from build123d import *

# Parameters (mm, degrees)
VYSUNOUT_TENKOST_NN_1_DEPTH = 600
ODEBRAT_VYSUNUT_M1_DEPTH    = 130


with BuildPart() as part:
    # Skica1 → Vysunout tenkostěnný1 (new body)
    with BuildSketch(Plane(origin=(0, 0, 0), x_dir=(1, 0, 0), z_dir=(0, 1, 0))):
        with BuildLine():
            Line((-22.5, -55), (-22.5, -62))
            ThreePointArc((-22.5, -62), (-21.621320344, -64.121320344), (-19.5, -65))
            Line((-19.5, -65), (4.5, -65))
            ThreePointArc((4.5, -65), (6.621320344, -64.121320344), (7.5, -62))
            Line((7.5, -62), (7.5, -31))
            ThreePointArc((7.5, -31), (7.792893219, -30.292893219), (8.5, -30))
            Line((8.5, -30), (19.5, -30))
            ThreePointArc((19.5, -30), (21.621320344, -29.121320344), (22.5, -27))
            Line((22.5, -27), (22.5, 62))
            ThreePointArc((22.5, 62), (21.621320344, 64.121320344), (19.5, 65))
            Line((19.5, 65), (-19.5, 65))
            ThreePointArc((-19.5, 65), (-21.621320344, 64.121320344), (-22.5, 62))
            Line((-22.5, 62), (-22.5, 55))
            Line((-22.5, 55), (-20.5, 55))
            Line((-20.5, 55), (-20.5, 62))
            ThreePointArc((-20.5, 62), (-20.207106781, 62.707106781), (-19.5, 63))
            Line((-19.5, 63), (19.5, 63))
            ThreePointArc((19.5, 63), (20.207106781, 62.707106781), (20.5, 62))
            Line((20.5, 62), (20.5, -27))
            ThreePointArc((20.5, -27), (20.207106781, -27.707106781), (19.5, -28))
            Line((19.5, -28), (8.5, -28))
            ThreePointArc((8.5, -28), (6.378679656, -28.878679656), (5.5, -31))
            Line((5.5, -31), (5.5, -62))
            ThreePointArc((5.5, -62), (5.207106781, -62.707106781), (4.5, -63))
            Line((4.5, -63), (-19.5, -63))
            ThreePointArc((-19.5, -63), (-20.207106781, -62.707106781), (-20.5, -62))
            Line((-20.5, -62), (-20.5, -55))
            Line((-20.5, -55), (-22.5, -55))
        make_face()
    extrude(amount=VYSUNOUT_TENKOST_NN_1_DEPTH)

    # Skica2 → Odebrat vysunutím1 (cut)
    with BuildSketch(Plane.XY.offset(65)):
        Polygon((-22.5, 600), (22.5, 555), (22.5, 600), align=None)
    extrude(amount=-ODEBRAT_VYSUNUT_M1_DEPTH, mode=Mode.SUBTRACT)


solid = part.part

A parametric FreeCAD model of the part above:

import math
import FreeCAD as App
import Part
import Sketcher
Q = App.Units.Quantity

doc = App.newDocument("Part")
body = doc.addObject("PartDesign::Body", "Body")

# Sketch on XZ plane
sketch1 = body.newObject("Sketcher::SketchObject", "Sketch")
sketch1.AttachmentSupport = (doc.getObject("XZ_Plane"), [""])
sketch1.MapMode = "FlatFace"
sketch1.addGeometry([
    Part.LineSegment(App.Vector(-22.5, 55, 0), App.Vector(-22.5, 62, 0)),  # 0
    Part.ArcOfCircle(Part.Circle(App.Vector(-19.5, 62, 0), App.Vector(0, 0, 1), 3), math.radians(90), math.radians(180)),  # 1
    Part.LineSegment(App.Vector(-19.5, 65, 0), App.Vector(4.5, 65, 0)),  # 2
    Part.ArcOfCircle(Part.Circle(App.Vector(4.5, 62, 0), App.Vector(0, 0, 1), 3), math.radians(0), math.radians(90)),  # 3
    Part.LineSegment(App.Vector(7.5, 62, 0), App.Vector(7.5, 31, 0)),  # 4
    Part.ArcOfCircle(Part.Circle(App.Vector(8.5, 31, 0), App.Vector(0, 0, 1), 1), math.radians(-180), math.radians(-90)),  # 5
    Part.LineSegment(App.Vector(8.5, 30, 0), App.Vector(19.5, 30, 0)),  # 6
    Part.ArcOfCircle(Part.Circle(App.Vector(19.5, 27, 0), App.Vector(0, 0, 1), 3), math.radians(0), math.radians(90)),  # 7
    Part.LineSegment(App.Vector(22.5, 27, 0), App.Vector(22.5, -62, 0)),  # 8
    Part.ArcOfCircle(Part.Circle(App.Vector(19.5, -62, 0), App.Vector(0, 0, 1), 3), math.radians(-90), math.radians(0)),  # 9
    Part.LineSegment(App.Vector(19.5, -65, 0), App.Vector(-19.5, -65, 0)),  # 10
    Part.ArcOfCircle(Part.Circle(App.Vector(-19.5, -62, 0), App.Vector(0, 0, 1), 3), math.radians(180), math.radians(270)),  # 11
    Part.LineSegment(App.Vector(-22.5, -62, 0), App.Vector(-22.5, -55, 0)),  # 12
    Part.LineSegment(App.Vector(-22.5, -55, 0), App.Vector(-20.5, -55, 0)),  # 13
    Part.LineSegment(App.Vector(-20.5, -55, 0), App.Vector(-20.5, -62, 0)),  # 14
    Part.ArcOfCircle(Part.Circle(App.Vector(-19.5, -62, 0), App.Vector(0, 0, 1), 1), math.radians(-180), math.radians(-90)),  # 15
    Part.LineSegment(App.Vector(-19.5, -63, 0), App.Vector(19.5, -63, 0)),  # 16
    Part.ArcOfCircle(Part.Circle(App.Vector(19.5, -62, 0), App.Vector(0, 0, 1), 1), math.radians(-90), math.radians(0)),  # 17
    Part.LineSegment(App.Vector(20.5, -62, 0), App.Vector(20.5, 27, 0)),  # 18
    Part.ArcOfCircle(Part.Circle(App.Vector(19.5, 27, 0), App.Vector(0, 0, 1), 1), math.radians(0), math.radians(90)),  # 19
    Part.LineSegment(App.Vector(19.5, 28, 0), App.Vector(8.5, 28, 0)),  # 20
    Part.ArcOfCircle(Part.Circle(App.Vector(8.5, 31, 0), App.Vector(0, 0, 1), 3), math.radians(180), math.radians(270)),  # 21
    Part.LineSegment(App.Vector(5.5, 31, 0), App.Vector(5.5, 62, 0)),  # 22
    Part.ArcOfCircle(Part.Circle(App.Vector(4.5, 62, 0), App.Vector(0, 0, 1), 1), math.radians(0), math.radians(90)),  # 23
    Part.LineSegment(App.Vector(4.5, 63, 0), App.Vector(-19.5, 63, 0)),  # 24
    Part.ArcOfCircle(Part.Circle(App.Vector(-19.5, 62, 0), App.Vector(0, 0, 1), 1), math.radians(90), math.radians(180)),  # 25
    Part.LineSegment(App.Vector(-20.5, 62, 0), App.Vector(-20.5, 55, 0)),  # 26
    Part.LineSegment(App.Vector(-20.5, 55, 0), App.Vector(-22.5, 55, 0)),  # 27
], False)
sketch1.addConstraint([
    Sketcher.Constraint("Tangent", 0, 2, 1, 2),
    Sketcher.Constraint("Tangent", 1, 1, 2, 1),
    Sketcher.Constraint("Tangent", 2, 2, 3, 2),
    Sketcher.Constraint("Tangent", 3, 1, 4, 1),
    Sketcher.Constraint("Tangent", 4, 2, 5, 1),
    Sketcher.Constraint("Tangent", 5, 2, 6, 1),
    Sketcher.Constraint("Tangent", 6, 2, 7, 2),
    Sketcher.Constraint("Tangent", 7, 1, 8, 1),
    Sketcher.Constraint("Tangent", 8, 2, 9, 2),
    Sketcher.Constraint("Tangent", 9, 1, 10, 1),
    Sketcher.Constraint("Tangent", 10, 2, 11, 2),
    Sketcher.Constraint("Tangent", 11, 1, 12, 1),
    Sketcher.Constraint("Coincident", 12, 2, 13, 1),
    Sketcher.Constraint("Coincident", 13, 2, 14, 1),
    Sketcher.Constraint("Tangent", 14, 2, 15, 1),
    Sketcher.Constraint("Tangent", 15, 2, 16, 1),
    Sketcher.Constraint("Tangent", 16, 2, 17, 1),
    Sketcher.Constraint("Tangent", 17, 2, 18, 1),
    Sketcher.Constraint("Tangent", 18, 2, 19, 1),
    Sketcher.Constraint("Tangent", 19, 2, 20, 1),
    Sketcher.Constraint("Tangent", 20, 2, 21, 2),
    Sketcher.Constraint("Tangent", 21, 1, 22, 1),
    Sketcher.Constraint("Tangent", 22, 2, 23, 1),
    Sketcher.Constraint("Tangent", 23, 2, 24, 1),
    Sketcher.Constraint("Tangent", 24, 2, 25, 1),
    Sketcher.Constraint("Tangent", 25, 2, 26, 1),
    Sketcher.Constraint("Coincident", 26, 2, 27, 1),
    Sketcher.Constraint("Coincident", 27, 2, 0, 1),
    Sketcher.Constraint("Vertical", 0),
    Sketcher.Constraint("Horizontal", 2),
    Sketcher.Constraint("Vertical", 4),
    Sketcher.Constraint("Horizontal", 6),
    Sketcher.Constraint("Vertical", 8),
    Sketcher.Constraint("Horizontal", 10),
    Sketcher.Constraint("Vertical", 12),
    Sketcher.Constraint("Horizontal", 13),
    Sketcher.Constraint("Vertical", 14),
    Sketcher.Constraint("Horizontal", 16),
    Sketcher.Constraint("Vertical", 18),
    Sketcher.Constraint("Horizontal", 20),
    Sketcher.Constraint("Vertical", 22),
    Sketcher.Constraint("Horizontal", 24),
    Sketcher.Constraint("Vertical", 26),
    Sketcher.Constraint("Horizontal", 27),
    Sketcher.Constraint("Coincident", 15, 3, 11, 3),
    Sketcher.Constraint("Coincident", 17, 3, 9, 3),
    Sketcher.Constraint("Coincident", 19, 3, 7, 3),
    Sketcher.Constraint("Coincident", 21, 3, 5, 3),
    Sketcher.Constraint("Coincident", 23, 3, 3, 3),
    Sketcher.Constraint("Coincident", 25, 3, 1, 3),
    Sketcher.Constraint("Equal", 1, 3),
    Sketcher.Constraint("Equal", 3, 7),
    Sketcher.Constraint("Equal", 7, 9),
    Sketcher.Constraint("Equal", 9, 11),
    Sketcher.Constraint("Equal", 5, 15),
    Sketcher.Constraint("Symmetric", 1, 3, 9, 3, -1, 1),
    Sketcher.Constraint("Symmetric", 13, 2, 26, 2, -1),
    Sketcher.Constraint("Radius", 1, Q("3 mm")),
    Sketcher.Constraint("Radius", 5, Q("1 mm")),
    Sketcher.Constraint("DistanceX", 2, 1, 2, 2, Q("24 mm")),
    Sketcher.Constraint("DistanceX", 6, 1, 6, 2, Q("11 mm")),
    Sketcher.Constraint("DistanceY", 0, 1, 0, 2, Q("7 mm")),
    Sketcher.Constraint("DistanceY", 4, 2, 4, 1, Q("31 mm")),
    Sketcher.Constraint("DistanceY", 8, 2, 8, 1, Q("89 mm")),
])
pad1 = body.newObject("PartDesign::Pad", "Pad")
pad1.Profile = sketch1
pad1.Length = 600
pad1.Reversed = True

# Sketch on XY plane
sketch2 = body.newObject("Sketcher::SketchObject", "Sketch001")
sketch2.AttachmentSupport = (doc.getObject("XY_Plane"), [""])
sketch2.MapMode = "FlatFace"
sketch2.AttachmentOffset = App.Placement(App.Vector(0, 0, 65), App.Rotation())
sketch2.addGeometry([
    Part.LineSegment(App.Vector(-22, 600, 0), App.Vector(22, 555, 0)),
    Part.LineSegment(App.Vector(22, 555, 0), App.Vector(22, 600, 0)),
    Part.LineSegment(App.Vector(22, 600, 0), App.Vector(-22, 600, 0)),
], False)
sketch2.addConstraint([
    Sketcher.Constraint("Coincident", 0, 2, 1, 1),
    Sketcher.Constraint("Coincident", 1, 2, 2, 1),
    Sketcher.Constraint("Coincident", 2, 2, 0, 1),
    Sketcher.Constraint("Vertical", 1),
    Sketcher.Constraint("Horizontal", 2),
    Sketcher.Constraint("Equal", 2, 1),
    Sketcher.Constraint("DistanceX", 2, 2, 2, 1, Q("45 mm")),
    Sketcher.Constraint("DistanceY", -1, 1, 0, 2, Q("555 mm")),
    Sketcher.Constraint("DistanceX", -1, 1, 0, 2, Q("22.5 mm")),
])
pocket1 = body.newObject("PartDesign::Pocket", "Pocket")
pocket1.Profile = sketch2
pocket1.Length = 130

doc.recompute()
